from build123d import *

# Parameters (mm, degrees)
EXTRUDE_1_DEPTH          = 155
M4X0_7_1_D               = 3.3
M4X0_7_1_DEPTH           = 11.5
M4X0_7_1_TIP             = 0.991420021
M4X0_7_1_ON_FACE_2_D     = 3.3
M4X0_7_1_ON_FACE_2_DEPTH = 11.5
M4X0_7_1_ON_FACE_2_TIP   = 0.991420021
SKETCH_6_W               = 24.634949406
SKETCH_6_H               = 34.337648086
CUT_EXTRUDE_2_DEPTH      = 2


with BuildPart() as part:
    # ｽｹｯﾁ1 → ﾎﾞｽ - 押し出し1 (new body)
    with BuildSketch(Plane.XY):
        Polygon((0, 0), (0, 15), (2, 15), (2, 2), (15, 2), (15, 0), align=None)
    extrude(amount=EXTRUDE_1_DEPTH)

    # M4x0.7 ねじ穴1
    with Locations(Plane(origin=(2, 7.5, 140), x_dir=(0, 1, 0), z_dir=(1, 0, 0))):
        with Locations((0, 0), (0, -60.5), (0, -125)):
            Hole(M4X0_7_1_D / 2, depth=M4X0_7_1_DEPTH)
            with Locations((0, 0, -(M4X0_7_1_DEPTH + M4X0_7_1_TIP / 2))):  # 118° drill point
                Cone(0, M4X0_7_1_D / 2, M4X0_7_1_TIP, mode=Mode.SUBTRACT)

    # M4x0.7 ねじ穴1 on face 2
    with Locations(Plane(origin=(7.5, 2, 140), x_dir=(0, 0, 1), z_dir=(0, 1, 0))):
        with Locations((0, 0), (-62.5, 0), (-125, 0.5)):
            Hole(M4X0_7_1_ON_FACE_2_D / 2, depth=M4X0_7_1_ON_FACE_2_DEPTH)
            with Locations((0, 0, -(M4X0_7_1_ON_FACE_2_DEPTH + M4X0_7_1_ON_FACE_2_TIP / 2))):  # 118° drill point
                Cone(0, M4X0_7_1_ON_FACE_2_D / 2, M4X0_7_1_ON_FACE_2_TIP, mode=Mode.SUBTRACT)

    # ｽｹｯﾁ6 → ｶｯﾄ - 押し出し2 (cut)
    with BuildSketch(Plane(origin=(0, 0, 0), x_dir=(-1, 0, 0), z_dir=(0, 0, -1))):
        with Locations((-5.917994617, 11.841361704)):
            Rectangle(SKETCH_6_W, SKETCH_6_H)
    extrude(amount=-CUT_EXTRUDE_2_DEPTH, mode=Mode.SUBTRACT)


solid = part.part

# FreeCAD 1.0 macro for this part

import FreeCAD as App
import Part
import Sketcher
from FreeCAD import Vector


def add_polygon(sketch, points):
    """Adds a closed chain of lines whose ends are joined by coincident constraints."""
    first, n = sketch.GeometryCount, len(points)
    for a, b in zip(points, points[1:] + points[:1]):
        sketch.addGeometry(Part.LineSegment(App.Vector(*a, 0), App.Vector(*b, 0)), False)
    for i in range(n):
        sketch.addConstraint(Sketcher.Constraint("Coincident", first + i, 2, first + (i + 1) % n, 1))

doc = App.newDocument("Part")
body = doc.addObject("PartDesign::Body", "Body")

# Sketch on XY plane
sketch1 = doc.addObject("Sketcher::SketchObject", "Sketch")
body.addObject(sketch1)
sketch1.AttachmentSupport = (doc.XY_Plane, [""])
sketch1.MapMode = "FlatFace"
add_polygon(sketch1, [(0, 15), (0, 0), (15, 0), (15, 2), (2, 2), (2, 15)])  # lines 0-5
sketch1.addConstraint(Sketcher.Constraint("Vertical", 0))
sketch1.addConstraint(Sketcher.Constraint("Horizontal", 1))
sketch1.addConstraint(Sketcher.Constraint("Vertical", 2))
sketch1.addConstraint(Sketcher.Constraint("Horizontal", 3))
sketch1.addConstraint(Sketcher.Constraint("Vertical", 4))
sketch1.addConstraint(Sketcher.Constraint("Horizontal", 5))
sketch1.addConstraint(Sketcher.Constraint("Coincident", 0, 2, -1, 1))
sketch1.addConstraint(Sketcher.Constraint("Equal", 1, 0))
sketch1.addConstraint(Sketcher.Constraint("Equal", 5, 2))
sketch1.addConstraint(Sketcher.Constraint("DistanceX", 1, 1, 1, 2, 15.0))
sketch1.addConstraint(Sketcher.Constraint("DistanceX", 3, 2, 3, 1, 13.0))
pad1 = doc.addObject("PartDesign::Pad", "Pad")
body.addObject(pad1)
pad1.Profile = sketch1
pad1.Length = 155

# Sketch on YZ plane
sketch2 = doc.addObject("Sketcher::SketchObject", "Sketch001")
body.addObject(sketch2)
sketch2.AttachmentSupport = (doc.YZ_Plane, [""])
sketch2.MapMode = "FlatFace"
sketch2.AttachmentOffset = App.Placement(Vector(0, 0, 2), App.Rotation())
sketch2.addGeometry(Part.Circle(Vector(7.5, 140, 0), Vector(0, 0, 1), 1.65), False)
sketch2.addGeometry(Part.Circle(Vector(7.5, 79.5, 0), Vector(0, 0, 1), 1.65), False)
sketch2.addGeometry(Part.Circle(Vector(7.5, 15, 0), Vector(0, 0, 1), 1.65), False)
sketch2.addConstraint(Sketcher.Constraint("Equal", 0, 1))
sketch2.addConstraint(Sketcher.Constraint("Equal", 1, 2))
sketch2.addConstraint(Sketcher.Constraint("Vertical", 0, 3, 1, 3))
sketch2.addConstraint(Sketcher.Constraint("Vertical", 1, 3, 2, 3))
sketch2.addConstraint(Sketcher.Constraint("Diameter", 0, 3.3))
sketch2.addConstraint(Sketcher.Constraint("DistanceY", -1, 1, 0, 3, 140.0))
sketch2.addConstraint(Sketcher.Constraint("DistanceY", -1, 1, 2, 3, 15.0))
sketch2.addConstraint(Sketcher.Constraint("DistanceX", -1, 1, 0, 3, 7.5))
sketch2.addConstraint(Sketcher.Constraint("DistanceY", -1, 1, 1, 3, 79.5))
doc.recompute()
hole = doc.addObject("PartDesign::Hole", "Hole")
body.addObject(hole)
hole.Profile = sketch2
hole.ThreadType = "None"
hole.Diameter = 3.3
hole.DepthType = "Dimension"
hole.Depth = 11.5
hole.DrillPoint = "Angled"
hole.DrillPointAngle = 118

# Sketch on XZ plane
sketch3 = doc.addObject("Sketcher::SketchObject", "Sketch002")
body.addObject(sketch3)
sketch3.AttachmentSupport = (doc.XZ_Plane, [""])
sketch3.MapMode = "FlatFace"
sketch3.AttachmentOffset = App.Placement(Vector(0, 0, -2), App.Rotation())
sketch3.addGeometry(Part.Circle(Vector(7.5, 140, 0), Vector(0, 0, 1), 1.65), False)
sketch3.addGeometry(Part.Circle(Vector(7.5, 77.5, 0), Vector(0, 0, 1), 1.65), False)
sketch3.addGeometry(Part.Circle(Vector(8, 15, 0), Vector(0, 0, 1), 1.65), False)
sketch3.addConstraint(Sketcher.Constraint("Equal", 0, 1))
sketch3.addConstraint(Sketcher.Constraint("Equal", 1, 2))
sketch3.addConstraint(Sketcher.Constraint("Vertical", 0, 3, 1, 3))
sketch3.addConstraint(Sketcher.Constraint("Diameter", 0, 3.3))
sketch3.addConstraint(Sketcher.Constraint("DistanceY", -1, 1, 0, 3, 140.0))
sketch3.addConstraint(Sketcher.Constraint("DistanceX", -1, 1, 2, 3, 8.0))
sketch3.addConstraint(Sketcher.Constraint("DistanceY", -1, 1, 2, 3, 15.0))
sketch3.addConstraint(Sketcher.Constraint("DistanceX", -1, 1, 0, 3, 7.5))
sketch3.addConstraint(Sketcher.Constraint("DistanceY", -1, 1, 1, 3, 77.5))
doc.recompute()
hole2 = doc.addObject("PartDesign::Hole", "Hole001")
body.addObject(hole2)
hole2.Profile = sketch3
hole2.ThreadType = "None"
hole2.Diameter = 3.3
hole2.DepthType = "Dimension"
hole2.Depth = 11.5
hole2.DrillPoint = "Angled"
hole2.DrillPointAngle = 118
hole2.Reversed = True

# Sketch on XY plane
sketch4 = doc.addObject("Sketcher::SketchObject", "Sketch003")
body.addObject(sketch4)
sketch4.AttachmentSupport = (doc.XY_Plane, [""])
sketch4.MapMode = "FlatFace"
add_polygon(sketch4, [(18.235469, 29.010186), (18.235469, -5.327462), (-6.39948, -5.327462), (-6.39948, 29.010186)])  # lines 0-3
sketch4.addConstraint(Sketcher.Constraint("Vertical", 0))
sketch4.addConstraint(Sketcher.Constraint("Horizontal", 1))
sketch4.addConstraint(Sketcher.Constraint("Vertical", 2))
sketch4.addConstraint(Sketcher.Constraint("Horizontal", 3))
sketch4.addConstraint(Sketcher.Constraint("DistanceX", 1, 2, 1, 1, 24.634949))
sketch4.addConstraint(Sketcher.Constraint("DistanceY", 0, 2, 0, 1, 34.337648))
sketch4.addConstraint(Sketcher.Constraint("DistanceX", -1, 1, 0, 2, 18.235469))
sketch4.addConstraint(Sketcher.Constraint("DistanceY", 0, 2, -1, 1, 5.327462))
pocket1 = doc.addObject("PartDesign::Pocket", "Pocket")
body.addObject(pocket1)
pocket1.Profile = sketch4
pocket1.Length = 2
pocket1.Reversed = True

doc.recompute()
